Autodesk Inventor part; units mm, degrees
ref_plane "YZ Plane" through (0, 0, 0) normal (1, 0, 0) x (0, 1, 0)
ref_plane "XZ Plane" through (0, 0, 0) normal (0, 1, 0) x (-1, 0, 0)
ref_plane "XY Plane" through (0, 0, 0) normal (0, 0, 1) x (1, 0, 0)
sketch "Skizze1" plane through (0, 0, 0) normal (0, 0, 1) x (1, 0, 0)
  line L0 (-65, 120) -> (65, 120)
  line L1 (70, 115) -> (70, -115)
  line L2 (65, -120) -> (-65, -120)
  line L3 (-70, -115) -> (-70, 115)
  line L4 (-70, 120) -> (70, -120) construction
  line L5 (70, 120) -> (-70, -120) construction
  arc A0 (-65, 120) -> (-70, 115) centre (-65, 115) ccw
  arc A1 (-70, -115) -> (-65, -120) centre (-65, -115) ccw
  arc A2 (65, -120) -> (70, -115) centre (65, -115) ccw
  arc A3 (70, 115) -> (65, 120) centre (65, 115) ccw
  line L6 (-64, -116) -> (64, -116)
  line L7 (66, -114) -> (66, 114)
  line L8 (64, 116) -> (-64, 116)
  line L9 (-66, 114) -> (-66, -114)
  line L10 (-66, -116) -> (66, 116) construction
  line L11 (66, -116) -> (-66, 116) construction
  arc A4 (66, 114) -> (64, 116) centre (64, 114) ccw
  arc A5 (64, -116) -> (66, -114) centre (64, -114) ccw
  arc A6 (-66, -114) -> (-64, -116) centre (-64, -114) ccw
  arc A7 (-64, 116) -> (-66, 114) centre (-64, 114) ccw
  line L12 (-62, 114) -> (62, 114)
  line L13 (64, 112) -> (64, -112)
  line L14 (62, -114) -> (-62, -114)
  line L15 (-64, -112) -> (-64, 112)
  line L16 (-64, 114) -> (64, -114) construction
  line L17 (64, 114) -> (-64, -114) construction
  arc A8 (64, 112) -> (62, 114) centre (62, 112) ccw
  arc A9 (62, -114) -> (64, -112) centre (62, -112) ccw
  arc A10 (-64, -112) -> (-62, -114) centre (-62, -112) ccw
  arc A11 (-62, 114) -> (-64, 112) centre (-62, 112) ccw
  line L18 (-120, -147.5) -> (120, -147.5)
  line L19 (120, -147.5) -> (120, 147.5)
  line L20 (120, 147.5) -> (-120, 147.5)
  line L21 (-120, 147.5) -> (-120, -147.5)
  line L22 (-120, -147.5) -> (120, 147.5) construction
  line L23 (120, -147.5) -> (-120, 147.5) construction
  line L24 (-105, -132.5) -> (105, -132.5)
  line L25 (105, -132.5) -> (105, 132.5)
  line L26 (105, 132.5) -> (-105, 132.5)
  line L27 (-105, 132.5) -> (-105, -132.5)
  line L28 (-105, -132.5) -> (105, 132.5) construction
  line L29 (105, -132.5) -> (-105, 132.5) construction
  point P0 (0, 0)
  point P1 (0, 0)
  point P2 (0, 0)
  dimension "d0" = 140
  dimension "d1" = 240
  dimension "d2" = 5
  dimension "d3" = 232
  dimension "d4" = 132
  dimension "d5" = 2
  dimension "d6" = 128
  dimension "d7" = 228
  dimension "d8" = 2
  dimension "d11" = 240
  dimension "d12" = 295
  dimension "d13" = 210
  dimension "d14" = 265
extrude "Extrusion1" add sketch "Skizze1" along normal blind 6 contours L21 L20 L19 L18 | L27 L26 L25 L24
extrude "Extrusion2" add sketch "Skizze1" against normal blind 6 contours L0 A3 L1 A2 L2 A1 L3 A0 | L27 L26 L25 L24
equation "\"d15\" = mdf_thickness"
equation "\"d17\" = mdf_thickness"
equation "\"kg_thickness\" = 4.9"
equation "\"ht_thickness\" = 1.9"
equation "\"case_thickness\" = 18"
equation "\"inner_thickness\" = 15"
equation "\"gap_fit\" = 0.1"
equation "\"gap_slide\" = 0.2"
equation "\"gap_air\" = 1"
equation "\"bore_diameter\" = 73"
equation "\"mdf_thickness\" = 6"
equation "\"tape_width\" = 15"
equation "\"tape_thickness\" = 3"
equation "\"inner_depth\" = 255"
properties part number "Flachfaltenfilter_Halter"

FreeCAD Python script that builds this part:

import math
import FreeCAD as App
import Part
import Sketcher
Q = App.Units.Quantity

doc = App.newDocument("Part")
body = doc.addObject("PartDesign::Body", "Body")

# Sketch on XY plane
sketch1 = body.newObject("Sketcher::SketchObject", "Sketch")
sketch1.AttachmentSupport = (doc.getObject("XY_Plane"), [""])
sketch1.MapMode = "FlatFace"
sketch1.addGeometry([
    Part.LineSegment(App.Vector(-120, 148, 0), App.Vector(-120, -148, 0)),  # 0
    Part.LineSegment(App.Vector(-120, -148, 0), App.Vector(120, -148, 0)),  # 1
    Part.LineSegment(App.Vector(120, -148, 0), App.Vector(120, 148, 0)),  # 2
    Part.LineSegment(App.Vector(120, 148, 0), App.Vector(-120, 148, 0)),  # 3
    Part.ArcOfCircle(Part.Circle(App.Vector(65, -115, 0), App.Vector(0, 0, 1), 5), math.radians(-90), math.radians(0)),  # 4
    Part.LineSegment(App.Vector(65, -120, 0), App.Vector(-65, -120, 0)),  # 5
    Part.ArcOfCircle(Part.Circle(App.Vector(-65, -115, 0), App.Vector(0, 0, 1), 5), math.radians(180), math.radians(270)),  # 6
    Part.LineSegment(App.Vector(-70, -115, 0), App.Vector(-70, 115, 0)),  # 7
    Part.ArcOfCircle(Part.Circle(App.Vector(-65, 115, 0), App.Vector(0, 0, 1), 5), math.radians(90), math.radians(180)),  # 8
    Part.LineSegment(App.Vector(-65, 120, 0), App.Vector(65, 120, 0)),  # 9
    Part.ArcOfCircle(Part.Circle(App.Vector(65, 115, 0), App.Vector(0, 0, 1), 5), math.radians(0), math.radians(90)),  # 10
    Part.LineSegment(App.Vector(70, 115, 0), App.Vector(70, -115, 0)),  # 11
], False)
sketch1.addConstraint([
    Sketcher.Constraint("Coincident", 0, 2, 1, 1),
    Sketcher.Constraint("Coincident", 1, 2, 2, 1),
    Sketcher.Constraint("Coincident", 2, 2, 3, 1),
    Sketcher.Constraint("Coincident", 3, 2, 0, 1),
    Sketcher.Constraint("Tangent", 4, 1, 5, 1),
    Sketcher.Constraint("Tangent", 5, 2, 6, 2),
    Sketcher.Constraint("Tangent", 6, 1, 7, 1),
    Sketcher.Constraint("Tangent", 7, 2, 8, 2),
    Sketcher.Constraint("Tangent", 8, 1, 9, 1),
    Sketcher.Constraint("Tangent", 9, 2, 10, 2),
    Sketcher.Constraint("Tangent", 10, 1, 11, 1),
    Sketcher.Constraint("Tangent", 11, 2, 4, 2),
    Sketcher.Constraint("Vertical", 0),
    Sketcher.Constraint("Horizontal", 1),
    Sketcher.Constraint("Vertical", 2),
    Sketcher.Constraint("Horizontal", 3),
    Sketcher.Constraint("Horizontal", 5),
    Sketcher.Constraint("Vertical", 7),
    Sketcher.Constraint("Horizontal", 9),
    Sketcher.Constraint("Vertical", 11),
    Sketcher.Constraint("Equal", 4, 6),
    Sketcher.Constraint("Equal", 6, 8),
    Sketcher.Constraint("Equal", 8, 10),
    Sketcher.Constraint("Symmetric", 4, 3, 8, 3, -1, 1),
    Sketcher.Constraint("Symmetric", 0, 2, 2, 2, -1, 1),
    Sketcher.Constraint("Radius", 4, Q("5 mm")),
    Sketcher.Constraint("DistanceX", 1, 1, 1, 2, Q("240 mm")),
    Sketcher.Constraint("DistanceY", 0, 2, 0, 1, Q("295 mm")),
    Sketcher.Constraint("DistanceX", 5, 2, 5, 1, Q("130 mm")),
    Sketcher.Constraint("DistanceY", 7, 1, 7, 2, Q("230 mm")),
])
pad1 = body.newObject("PartDesign::Pad", "Pad")
pad1.Profile = sketch1
pad1.Length = 6

# Sketch on XY plane
sketch2 = body.newObject("Sketcher::SketchObject", "Sketch001")
sketch2.AttachmentSupport = (doc.getObject("XY_Plane"), [""])
sketch2.MapMode = "FlatFace"
sketch2.addGeometry([
    Part.LineSegment(App.Vector(-105, 132.5, 0), App.Vector(-105, -132.5, 0)),  # 0
    Part.LineSegment(App.Vector(-105, -132.5, 0), App.Vector(105, -132.5, 0)),  # 1
    Part.LineSegment(App.Vector(105, -132.5, 0), App.Vector(105, 132.5, 0)),  # 2
    Part.LineSegment(App.Vector(105, 132.5, 0), App.Vector(-105, 132.5, 0)),  # 3
    Part.LineSegment(App.Vector(64, -116, 0), App.Vector(-64, -116, 0)),  # 4
    Part.ArcOfCircle(Part.Circle(App.Vector(-64, -114, 0), App.Vector(0, 0, 1), 2), math.radians(180), math.radians(270)),  # 5
    Part.LineSegment(App.Vector(-66, -114, 0), App.Vector(-66, 114, 0)),  # 6
    Part.ArcOfCircle(Part.Circle(App.Vector(-64, 114, 0), App.Vector(0, 0, 1), 2), math.radians(90), math.radians(180)),  # 7
    Part.LineSegment(App.Vector(-64, 116, 0), App.Vector(64, 116, 0)),  # 8
    Part.ArcOfCircle(Part.Circle(App.Vector(64, 114, 0), App.Vector(0, 0, 1), 2), math.radians(0), math.radians(90)),  # 9
    Part.LineSegment(App.Vector(66, 114, 0), App.Vector(66, -114, 0)),  # 10
    Part.ArcOfCircle(Part.Circle(App.Vector(64, -114, 0), App.Vector(0, 0, 1), 2), math.radians(-90), math.radians(0)),  # 11
], False)
sketch2.addConstraint([
    Sketcher.Constraint("Coincident", 0, 2, 1, 1),
    Sketcher.Constraint("Coincident", 1, 2, 2, 1),
    Sketcher.Constraint("Coincident", 2, 2, 3, 1),
    Sketcher.Constraint("Coincident", 3, 2, 0, 1),
    Sketcher.Constraint("Tangent", 4, 2, 5, 2),
    Sketcher.Constraint("Tangent", 5, 1, 6, 1),
    Sketcher.Constraint("Tangent", 6, 2, 7, 2),
    Sketcher.Constraint("Tangent", 7, 1, 8, 1),
    Sketcher.Constraint("Tangent", 8, 2, 9, 2),
    Sketcher.Constraint("Tangent", 9, 1, 10, 1),
    Sketcher.Constraint("Tangent", 10, 2, 11, 2),
    Sketcher.Constraint("Tangent", 11, 1, 4, 1),
    Sketcher.Constraint("Vertical", 0),
    Sketcher.Constraint("Horizontal", 1),
    Sketcher.Constraint("Vertical", 2),
    Sketcher.Constraint("Horizontal", 3),
    Sketcher.Constraint("Horizontal", 4),
    Sketcher.Constraint("Vertical", 6),
    Sketcher.Constraint("Horizontal", 8),
    Sketcher.Constraint("Vertical", 10),
    Sketcher.Constraint("Equal", 5, 7),
    Sketcher.Constraint("Equal", 7, 9),
    Sketcher.Constraint("Equal", 9, 11),
    Sketcher.Constraint("Symmetric", 5, 3, 9, 3, -1, 1),
    Sketcher.Constraint("Symmetric", 0, 2, 2, 2, -1, 1),
    Sketcher.Constraint("Radius", 5, Q("2 mm")),
    Sketcher.Constraint("DistanceX", 1, 1, 1, 2, Q("210 mm")),
    Sketcher.Constraint("DistanceX", 4, 2, 4, 1, Q("128 mm")),
    Sketcher.Constraint("DistanceY", 0, 2, 0, 1, Q("265 mm")),
    Sketcher.Constraint("DistanceY", 6, 1, 6, 2, Q("228 mm")),
])
pad2 = body.newObject("PartDesign::Pad", "Pad001")
pad2.Profile = sketch2
pad2.Length = 6
pad2.Reversed = True

doc.recompute()
